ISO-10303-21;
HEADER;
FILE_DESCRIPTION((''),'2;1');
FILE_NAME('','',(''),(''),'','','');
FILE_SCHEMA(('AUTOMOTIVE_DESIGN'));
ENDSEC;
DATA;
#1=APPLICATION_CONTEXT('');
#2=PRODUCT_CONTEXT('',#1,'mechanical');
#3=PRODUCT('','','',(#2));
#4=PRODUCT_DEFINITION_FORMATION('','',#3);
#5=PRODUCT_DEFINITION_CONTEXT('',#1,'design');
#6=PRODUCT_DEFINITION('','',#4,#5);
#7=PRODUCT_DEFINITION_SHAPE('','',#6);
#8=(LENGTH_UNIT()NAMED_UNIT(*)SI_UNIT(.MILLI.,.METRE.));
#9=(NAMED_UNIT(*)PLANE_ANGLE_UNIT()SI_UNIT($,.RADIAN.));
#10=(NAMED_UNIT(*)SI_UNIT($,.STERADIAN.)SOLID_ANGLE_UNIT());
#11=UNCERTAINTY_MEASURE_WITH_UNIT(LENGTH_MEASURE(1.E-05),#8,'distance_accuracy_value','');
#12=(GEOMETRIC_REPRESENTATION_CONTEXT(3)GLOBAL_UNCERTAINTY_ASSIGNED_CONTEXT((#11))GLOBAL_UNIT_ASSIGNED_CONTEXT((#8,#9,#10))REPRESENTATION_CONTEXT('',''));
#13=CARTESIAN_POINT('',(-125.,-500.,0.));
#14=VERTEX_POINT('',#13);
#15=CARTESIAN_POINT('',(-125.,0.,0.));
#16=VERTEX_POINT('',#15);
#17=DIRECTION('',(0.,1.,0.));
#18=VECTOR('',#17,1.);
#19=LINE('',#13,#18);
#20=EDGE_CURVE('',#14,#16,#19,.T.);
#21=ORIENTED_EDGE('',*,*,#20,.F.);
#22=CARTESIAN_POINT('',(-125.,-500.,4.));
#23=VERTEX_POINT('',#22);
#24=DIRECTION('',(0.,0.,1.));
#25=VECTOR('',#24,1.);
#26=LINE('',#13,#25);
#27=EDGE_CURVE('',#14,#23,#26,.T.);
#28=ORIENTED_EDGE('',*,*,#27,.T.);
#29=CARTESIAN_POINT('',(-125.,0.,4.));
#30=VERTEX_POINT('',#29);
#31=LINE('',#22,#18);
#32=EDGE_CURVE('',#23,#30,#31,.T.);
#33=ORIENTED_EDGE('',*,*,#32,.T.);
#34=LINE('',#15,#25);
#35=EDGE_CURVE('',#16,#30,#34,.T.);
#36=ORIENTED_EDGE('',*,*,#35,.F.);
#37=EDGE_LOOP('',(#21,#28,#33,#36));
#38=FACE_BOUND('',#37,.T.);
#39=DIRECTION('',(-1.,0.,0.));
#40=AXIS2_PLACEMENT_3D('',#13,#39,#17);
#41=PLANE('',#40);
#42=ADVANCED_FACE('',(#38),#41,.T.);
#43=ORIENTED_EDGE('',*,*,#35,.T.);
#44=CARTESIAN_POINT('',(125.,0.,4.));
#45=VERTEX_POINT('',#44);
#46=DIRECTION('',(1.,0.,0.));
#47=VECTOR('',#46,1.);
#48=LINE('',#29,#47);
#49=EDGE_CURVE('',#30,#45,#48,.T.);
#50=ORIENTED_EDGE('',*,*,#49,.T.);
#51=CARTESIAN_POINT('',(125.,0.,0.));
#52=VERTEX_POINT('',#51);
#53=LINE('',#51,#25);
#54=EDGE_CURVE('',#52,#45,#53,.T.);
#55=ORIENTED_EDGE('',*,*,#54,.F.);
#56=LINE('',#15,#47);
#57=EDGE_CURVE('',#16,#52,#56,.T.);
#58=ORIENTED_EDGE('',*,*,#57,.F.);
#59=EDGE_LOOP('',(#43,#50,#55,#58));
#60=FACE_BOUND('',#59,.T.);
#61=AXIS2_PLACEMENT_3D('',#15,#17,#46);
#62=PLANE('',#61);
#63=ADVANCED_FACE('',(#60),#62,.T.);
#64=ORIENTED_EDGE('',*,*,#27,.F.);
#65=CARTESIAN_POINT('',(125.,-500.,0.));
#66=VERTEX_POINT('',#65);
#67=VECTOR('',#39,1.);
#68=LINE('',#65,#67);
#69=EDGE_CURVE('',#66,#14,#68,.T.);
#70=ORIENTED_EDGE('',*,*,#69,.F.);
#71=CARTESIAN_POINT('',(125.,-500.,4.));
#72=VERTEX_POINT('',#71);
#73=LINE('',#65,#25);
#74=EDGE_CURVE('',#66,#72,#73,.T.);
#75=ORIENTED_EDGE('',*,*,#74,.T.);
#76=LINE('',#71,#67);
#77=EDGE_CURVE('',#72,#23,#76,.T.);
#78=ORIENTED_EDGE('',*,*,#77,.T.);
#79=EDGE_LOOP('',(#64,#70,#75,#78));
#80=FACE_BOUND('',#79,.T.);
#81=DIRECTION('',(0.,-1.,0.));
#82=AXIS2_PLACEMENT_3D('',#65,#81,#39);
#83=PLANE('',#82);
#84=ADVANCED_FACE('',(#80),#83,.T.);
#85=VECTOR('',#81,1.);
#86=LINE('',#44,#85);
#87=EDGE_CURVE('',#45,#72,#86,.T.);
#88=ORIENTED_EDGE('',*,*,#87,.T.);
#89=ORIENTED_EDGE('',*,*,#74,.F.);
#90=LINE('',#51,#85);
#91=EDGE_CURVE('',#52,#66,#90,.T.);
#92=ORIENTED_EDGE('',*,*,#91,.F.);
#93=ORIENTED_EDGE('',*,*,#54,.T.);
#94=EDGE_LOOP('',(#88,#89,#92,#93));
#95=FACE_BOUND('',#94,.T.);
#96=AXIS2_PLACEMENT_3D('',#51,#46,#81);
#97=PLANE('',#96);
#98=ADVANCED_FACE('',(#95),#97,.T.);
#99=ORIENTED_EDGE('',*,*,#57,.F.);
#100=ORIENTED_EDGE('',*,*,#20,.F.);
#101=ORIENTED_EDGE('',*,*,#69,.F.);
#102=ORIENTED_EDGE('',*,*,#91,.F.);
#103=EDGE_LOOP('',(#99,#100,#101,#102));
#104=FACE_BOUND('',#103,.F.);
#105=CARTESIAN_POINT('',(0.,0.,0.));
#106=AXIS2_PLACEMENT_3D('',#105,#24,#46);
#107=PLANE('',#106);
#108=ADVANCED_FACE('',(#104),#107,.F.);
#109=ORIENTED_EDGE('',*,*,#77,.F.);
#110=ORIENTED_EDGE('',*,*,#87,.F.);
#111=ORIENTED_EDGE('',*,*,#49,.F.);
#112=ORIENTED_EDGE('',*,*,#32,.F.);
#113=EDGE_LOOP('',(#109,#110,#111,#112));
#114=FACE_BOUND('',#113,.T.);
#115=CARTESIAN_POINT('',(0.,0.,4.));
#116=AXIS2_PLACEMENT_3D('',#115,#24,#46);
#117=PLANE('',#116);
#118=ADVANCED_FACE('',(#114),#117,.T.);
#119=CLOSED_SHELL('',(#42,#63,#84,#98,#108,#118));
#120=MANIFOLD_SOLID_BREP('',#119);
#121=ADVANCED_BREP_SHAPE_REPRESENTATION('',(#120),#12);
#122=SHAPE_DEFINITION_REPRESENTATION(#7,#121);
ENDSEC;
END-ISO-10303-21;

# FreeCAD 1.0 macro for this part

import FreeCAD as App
import Part
import Sketcher
from FreeCAD import Vector


def add_polygon(sketch, points):
    """Adds a closed chain of lines whose ends are joined by coincident constraints."""
    first, n = sketch.GeometryCount, len(points)
    for a, b in zip(points, points[1:] + points[:1]):
        sketch.addGeometry(Part.LineSegment(App.Vector(*a, 0), App.Vector(*b, 0)), False)
    for i in range(n):
        sketch.addConstraint(Sketcher.Constraint("Coincident", first + i, 2, first + (i + 1) % n, 1))

doc = App.newDocument("Part")
body = doc.addObject("PartDesign::Body", "Body")

# Sketch on XY plane
sketch1 = doc.addObject("Sketcher::SketchObject", "Sketch")
body.addObject(sketch1)
sketch1.AttachmentSupport = (doc.XY_Plane, [""])
sketch1.MapMode = "FlatFace"
add_polygon(sketch1, [(125, 0), (-125, 0), (-125, -500), (125, -500)])  # lines 0-3
sketch1.addConstraint([
    Sketcher.Constraint("Horizontal", 0),
    Sketcher.Constraint("Vertical", 1),
    Sketcher.Constraint("Horizontal", 2),
    Sketcher.Constraint("Vertical", 3),
    Sketcher.Constraint("Symmetric", 0, 2, 3, 2, -1, 1),
    Sketcher.Constraint("DistanceX", 0, 2, 0, 1, 250.0),
    Sketcher.Constraint("DistanceY", 1, 2, 1, 1, 500.0),
])
pad1 = doc.addObject("PartDesign::Pad", "Pad")
body.addObject(pad1)
pad1.Profile = sketch1
pad1.Length = 4

doc.recompute()
